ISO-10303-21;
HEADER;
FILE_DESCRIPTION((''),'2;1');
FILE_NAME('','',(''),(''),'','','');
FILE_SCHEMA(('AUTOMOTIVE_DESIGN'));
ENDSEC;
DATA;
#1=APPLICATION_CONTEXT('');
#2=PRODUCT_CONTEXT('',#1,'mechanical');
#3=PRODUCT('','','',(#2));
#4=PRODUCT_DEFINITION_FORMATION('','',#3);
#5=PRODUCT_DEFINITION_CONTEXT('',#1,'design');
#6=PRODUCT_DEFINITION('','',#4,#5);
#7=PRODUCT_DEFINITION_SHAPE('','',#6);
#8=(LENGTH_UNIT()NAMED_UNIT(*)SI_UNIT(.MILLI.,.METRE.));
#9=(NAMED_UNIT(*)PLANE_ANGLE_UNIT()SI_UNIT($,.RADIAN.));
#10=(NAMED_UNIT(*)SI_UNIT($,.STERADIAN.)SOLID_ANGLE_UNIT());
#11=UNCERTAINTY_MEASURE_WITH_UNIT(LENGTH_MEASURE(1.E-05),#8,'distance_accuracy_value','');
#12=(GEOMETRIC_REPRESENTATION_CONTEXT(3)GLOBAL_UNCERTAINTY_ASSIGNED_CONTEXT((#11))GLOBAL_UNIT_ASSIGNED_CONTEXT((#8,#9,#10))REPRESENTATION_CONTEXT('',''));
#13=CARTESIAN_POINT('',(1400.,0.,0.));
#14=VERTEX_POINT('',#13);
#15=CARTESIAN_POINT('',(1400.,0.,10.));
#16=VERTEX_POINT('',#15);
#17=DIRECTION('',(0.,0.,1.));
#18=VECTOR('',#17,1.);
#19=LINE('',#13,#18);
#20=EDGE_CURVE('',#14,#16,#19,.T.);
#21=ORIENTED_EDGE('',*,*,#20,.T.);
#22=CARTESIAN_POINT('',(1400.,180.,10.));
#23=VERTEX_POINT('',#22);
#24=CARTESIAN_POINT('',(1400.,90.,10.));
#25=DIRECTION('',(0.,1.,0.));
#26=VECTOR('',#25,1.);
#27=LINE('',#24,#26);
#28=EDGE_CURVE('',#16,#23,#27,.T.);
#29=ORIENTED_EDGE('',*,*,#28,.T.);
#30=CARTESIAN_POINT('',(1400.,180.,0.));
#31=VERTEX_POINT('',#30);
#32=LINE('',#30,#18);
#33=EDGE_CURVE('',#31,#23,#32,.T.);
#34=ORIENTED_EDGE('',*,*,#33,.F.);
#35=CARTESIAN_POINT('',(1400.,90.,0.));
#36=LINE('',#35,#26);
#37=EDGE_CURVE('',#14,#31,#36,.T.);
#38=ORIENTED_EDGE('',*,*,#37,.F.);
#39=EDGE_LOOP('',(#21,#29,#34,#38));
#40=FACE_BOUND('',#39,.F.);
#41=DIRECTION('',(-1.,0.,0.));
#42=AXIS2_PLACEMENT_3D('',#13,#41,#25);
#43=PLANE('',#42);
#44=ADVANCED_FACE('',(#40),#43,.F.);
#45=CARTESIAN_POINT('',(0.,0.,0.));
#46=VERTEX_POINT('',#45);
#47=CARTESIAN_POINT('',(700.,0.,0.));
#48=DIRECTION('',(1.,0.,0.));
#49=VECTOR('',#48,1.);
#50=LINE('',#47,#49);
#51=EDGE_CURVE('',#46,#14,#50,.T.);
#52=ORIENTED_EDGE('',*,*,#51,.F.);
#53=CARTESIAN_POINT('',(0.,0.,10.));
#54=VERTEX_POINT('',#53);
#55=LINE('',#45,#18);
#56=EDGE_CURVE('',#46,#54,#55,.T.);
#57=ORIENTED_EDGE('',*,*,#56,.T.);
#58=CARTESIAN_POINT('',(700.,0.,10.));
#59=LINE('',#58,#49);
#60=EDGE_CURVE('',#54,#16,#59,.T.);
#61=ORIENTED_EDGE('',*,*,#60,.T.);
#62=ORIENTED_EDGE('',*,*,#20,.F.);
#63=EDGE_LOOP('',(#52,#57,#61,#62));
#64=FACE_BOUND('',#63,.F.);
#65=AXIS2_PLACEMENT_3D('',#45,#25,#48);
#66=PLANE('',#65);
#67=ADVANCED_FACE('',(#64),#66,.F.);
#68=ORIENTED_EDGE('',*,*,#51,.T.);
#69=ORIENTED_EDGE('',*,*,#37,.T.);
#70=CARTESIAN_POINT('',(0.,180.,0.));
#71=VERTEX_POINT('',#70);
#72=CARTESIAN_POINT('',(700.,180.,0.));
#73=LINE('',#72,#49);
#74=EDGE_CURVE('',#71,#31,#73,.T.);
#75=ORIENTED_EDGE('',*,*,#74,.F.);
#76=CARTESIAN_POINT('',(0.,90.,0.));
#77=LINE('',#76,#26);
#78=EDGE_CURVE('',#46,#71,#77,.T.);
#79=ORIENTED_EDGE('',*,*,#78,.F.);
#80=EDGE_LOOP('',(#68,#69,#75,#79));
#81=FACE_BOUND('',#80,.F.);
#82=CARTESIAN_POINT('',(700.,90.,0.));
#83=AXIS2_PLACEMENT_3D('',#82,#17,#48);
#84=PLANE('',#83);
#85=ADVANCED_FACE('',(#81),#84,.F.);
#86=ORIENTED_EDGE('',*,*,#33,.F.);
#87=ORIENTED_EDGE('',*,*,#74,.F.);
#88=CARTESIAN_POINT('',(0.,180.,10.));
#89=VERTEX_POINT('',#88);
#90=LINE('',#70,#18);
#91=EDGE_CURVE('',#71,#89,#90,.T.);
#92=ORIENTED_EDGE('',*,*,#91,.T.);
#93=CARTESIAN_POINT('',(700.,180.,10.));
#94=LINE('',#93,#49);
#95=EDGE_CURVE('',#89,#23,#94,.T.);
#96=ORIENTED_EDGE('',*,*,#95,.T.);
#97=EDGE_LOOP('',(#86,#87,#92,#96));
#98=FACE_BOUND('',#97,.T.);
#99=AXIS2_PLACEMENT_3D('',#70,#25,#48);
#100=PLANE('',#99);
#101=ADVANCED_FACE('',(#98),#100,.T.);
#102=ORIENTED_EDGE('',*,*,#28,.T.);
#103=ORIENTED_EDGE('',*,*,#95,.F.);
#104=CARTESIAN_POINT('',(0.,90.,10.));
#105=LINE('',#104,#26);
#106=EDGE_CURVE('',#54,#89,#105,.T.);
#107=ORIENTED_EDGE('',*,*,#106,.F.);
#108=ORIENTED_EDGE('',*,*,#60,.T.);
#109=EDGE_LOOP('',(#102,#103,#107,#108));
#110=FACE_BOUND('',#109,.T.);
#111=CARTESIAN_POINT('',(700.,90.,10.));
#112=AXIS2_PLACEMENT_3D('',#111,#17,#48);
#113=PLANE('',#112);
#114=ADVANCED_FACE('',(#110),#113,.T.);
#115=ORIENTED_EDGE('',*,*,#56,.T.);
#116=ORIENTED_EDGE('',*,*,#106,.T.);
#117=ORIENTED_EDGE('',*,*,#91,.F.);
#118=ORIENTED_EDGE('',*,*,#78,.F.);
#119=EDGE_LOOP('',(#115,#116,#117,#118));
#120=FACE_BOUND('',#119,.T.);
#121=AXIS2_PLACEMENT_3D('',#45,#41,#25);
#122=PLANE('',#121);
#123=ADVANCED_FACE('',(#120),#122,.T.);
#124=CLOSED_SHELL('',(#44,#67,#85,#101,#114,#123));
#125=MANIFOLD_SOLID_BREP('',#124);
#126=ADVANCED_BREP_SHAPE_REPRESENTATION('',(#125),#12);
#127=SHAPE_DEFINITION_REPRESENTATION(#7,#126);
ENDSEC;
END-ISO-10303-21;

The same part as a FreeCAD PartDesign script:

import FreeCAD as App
import Part
import Sketcher
from FreeCAD import Vector
Q = App.Units.Quantity


def add_polygon(sketch, points):
    """Adds a closed chain of lines whose ends are joined by coincident constraints."""
    first, n = sketch.GeometryCount, len(points)
    for a, b in zip(points, points[1:] + points[:1]):
        sketch.addGeometry(Part.LineSegment(App.Vector(*a, 0), App.Vector(*b, 0)), False)
    for i in range(n):
        sketch.addConstraint(Sketcher.Constraint("Coincident", first + i, 2, first + (i + 1) % n, 1))

doc = App.newDocument("Part")
body = doc.addObject("PartDesign::Body", "Body")

sketch1 = body.newObject("Sketcher::SketchObject", "Sketch")
sketch1.AttachmentSupport = (doc.getObject("XY_Plane"), [""])
sketch1.MapMode = "FlatFace"
add_polygon(sketch1, [(0, 180), (0, 0), (1400, 0), (1400, 180)])
sketch1.addConstraint([
    Sketcher.Constraint("Vertical", 0),
    Sketcher.Constraint("Horizontal", 1),
    Sketcher.Constraint("Vertical", 2),
    Sketcher.Constraint("Horizontal", 3),
    Sketcher.Constraint("Coincident", 0, 2, -1, 1),
    Sketcher.Constraint("DistanceX", 1, 1, 1, 2, Q("1400 mm")),
    Sketcher.Constraint("DistanceY", 0, 2, 0, 1, Q("180 mm")),
])
pad1 = body.newObject("PartDesign::Pad", "Pad")
pad1.Profile = sketch1
pad1.Length = 10

doc.recompute()
